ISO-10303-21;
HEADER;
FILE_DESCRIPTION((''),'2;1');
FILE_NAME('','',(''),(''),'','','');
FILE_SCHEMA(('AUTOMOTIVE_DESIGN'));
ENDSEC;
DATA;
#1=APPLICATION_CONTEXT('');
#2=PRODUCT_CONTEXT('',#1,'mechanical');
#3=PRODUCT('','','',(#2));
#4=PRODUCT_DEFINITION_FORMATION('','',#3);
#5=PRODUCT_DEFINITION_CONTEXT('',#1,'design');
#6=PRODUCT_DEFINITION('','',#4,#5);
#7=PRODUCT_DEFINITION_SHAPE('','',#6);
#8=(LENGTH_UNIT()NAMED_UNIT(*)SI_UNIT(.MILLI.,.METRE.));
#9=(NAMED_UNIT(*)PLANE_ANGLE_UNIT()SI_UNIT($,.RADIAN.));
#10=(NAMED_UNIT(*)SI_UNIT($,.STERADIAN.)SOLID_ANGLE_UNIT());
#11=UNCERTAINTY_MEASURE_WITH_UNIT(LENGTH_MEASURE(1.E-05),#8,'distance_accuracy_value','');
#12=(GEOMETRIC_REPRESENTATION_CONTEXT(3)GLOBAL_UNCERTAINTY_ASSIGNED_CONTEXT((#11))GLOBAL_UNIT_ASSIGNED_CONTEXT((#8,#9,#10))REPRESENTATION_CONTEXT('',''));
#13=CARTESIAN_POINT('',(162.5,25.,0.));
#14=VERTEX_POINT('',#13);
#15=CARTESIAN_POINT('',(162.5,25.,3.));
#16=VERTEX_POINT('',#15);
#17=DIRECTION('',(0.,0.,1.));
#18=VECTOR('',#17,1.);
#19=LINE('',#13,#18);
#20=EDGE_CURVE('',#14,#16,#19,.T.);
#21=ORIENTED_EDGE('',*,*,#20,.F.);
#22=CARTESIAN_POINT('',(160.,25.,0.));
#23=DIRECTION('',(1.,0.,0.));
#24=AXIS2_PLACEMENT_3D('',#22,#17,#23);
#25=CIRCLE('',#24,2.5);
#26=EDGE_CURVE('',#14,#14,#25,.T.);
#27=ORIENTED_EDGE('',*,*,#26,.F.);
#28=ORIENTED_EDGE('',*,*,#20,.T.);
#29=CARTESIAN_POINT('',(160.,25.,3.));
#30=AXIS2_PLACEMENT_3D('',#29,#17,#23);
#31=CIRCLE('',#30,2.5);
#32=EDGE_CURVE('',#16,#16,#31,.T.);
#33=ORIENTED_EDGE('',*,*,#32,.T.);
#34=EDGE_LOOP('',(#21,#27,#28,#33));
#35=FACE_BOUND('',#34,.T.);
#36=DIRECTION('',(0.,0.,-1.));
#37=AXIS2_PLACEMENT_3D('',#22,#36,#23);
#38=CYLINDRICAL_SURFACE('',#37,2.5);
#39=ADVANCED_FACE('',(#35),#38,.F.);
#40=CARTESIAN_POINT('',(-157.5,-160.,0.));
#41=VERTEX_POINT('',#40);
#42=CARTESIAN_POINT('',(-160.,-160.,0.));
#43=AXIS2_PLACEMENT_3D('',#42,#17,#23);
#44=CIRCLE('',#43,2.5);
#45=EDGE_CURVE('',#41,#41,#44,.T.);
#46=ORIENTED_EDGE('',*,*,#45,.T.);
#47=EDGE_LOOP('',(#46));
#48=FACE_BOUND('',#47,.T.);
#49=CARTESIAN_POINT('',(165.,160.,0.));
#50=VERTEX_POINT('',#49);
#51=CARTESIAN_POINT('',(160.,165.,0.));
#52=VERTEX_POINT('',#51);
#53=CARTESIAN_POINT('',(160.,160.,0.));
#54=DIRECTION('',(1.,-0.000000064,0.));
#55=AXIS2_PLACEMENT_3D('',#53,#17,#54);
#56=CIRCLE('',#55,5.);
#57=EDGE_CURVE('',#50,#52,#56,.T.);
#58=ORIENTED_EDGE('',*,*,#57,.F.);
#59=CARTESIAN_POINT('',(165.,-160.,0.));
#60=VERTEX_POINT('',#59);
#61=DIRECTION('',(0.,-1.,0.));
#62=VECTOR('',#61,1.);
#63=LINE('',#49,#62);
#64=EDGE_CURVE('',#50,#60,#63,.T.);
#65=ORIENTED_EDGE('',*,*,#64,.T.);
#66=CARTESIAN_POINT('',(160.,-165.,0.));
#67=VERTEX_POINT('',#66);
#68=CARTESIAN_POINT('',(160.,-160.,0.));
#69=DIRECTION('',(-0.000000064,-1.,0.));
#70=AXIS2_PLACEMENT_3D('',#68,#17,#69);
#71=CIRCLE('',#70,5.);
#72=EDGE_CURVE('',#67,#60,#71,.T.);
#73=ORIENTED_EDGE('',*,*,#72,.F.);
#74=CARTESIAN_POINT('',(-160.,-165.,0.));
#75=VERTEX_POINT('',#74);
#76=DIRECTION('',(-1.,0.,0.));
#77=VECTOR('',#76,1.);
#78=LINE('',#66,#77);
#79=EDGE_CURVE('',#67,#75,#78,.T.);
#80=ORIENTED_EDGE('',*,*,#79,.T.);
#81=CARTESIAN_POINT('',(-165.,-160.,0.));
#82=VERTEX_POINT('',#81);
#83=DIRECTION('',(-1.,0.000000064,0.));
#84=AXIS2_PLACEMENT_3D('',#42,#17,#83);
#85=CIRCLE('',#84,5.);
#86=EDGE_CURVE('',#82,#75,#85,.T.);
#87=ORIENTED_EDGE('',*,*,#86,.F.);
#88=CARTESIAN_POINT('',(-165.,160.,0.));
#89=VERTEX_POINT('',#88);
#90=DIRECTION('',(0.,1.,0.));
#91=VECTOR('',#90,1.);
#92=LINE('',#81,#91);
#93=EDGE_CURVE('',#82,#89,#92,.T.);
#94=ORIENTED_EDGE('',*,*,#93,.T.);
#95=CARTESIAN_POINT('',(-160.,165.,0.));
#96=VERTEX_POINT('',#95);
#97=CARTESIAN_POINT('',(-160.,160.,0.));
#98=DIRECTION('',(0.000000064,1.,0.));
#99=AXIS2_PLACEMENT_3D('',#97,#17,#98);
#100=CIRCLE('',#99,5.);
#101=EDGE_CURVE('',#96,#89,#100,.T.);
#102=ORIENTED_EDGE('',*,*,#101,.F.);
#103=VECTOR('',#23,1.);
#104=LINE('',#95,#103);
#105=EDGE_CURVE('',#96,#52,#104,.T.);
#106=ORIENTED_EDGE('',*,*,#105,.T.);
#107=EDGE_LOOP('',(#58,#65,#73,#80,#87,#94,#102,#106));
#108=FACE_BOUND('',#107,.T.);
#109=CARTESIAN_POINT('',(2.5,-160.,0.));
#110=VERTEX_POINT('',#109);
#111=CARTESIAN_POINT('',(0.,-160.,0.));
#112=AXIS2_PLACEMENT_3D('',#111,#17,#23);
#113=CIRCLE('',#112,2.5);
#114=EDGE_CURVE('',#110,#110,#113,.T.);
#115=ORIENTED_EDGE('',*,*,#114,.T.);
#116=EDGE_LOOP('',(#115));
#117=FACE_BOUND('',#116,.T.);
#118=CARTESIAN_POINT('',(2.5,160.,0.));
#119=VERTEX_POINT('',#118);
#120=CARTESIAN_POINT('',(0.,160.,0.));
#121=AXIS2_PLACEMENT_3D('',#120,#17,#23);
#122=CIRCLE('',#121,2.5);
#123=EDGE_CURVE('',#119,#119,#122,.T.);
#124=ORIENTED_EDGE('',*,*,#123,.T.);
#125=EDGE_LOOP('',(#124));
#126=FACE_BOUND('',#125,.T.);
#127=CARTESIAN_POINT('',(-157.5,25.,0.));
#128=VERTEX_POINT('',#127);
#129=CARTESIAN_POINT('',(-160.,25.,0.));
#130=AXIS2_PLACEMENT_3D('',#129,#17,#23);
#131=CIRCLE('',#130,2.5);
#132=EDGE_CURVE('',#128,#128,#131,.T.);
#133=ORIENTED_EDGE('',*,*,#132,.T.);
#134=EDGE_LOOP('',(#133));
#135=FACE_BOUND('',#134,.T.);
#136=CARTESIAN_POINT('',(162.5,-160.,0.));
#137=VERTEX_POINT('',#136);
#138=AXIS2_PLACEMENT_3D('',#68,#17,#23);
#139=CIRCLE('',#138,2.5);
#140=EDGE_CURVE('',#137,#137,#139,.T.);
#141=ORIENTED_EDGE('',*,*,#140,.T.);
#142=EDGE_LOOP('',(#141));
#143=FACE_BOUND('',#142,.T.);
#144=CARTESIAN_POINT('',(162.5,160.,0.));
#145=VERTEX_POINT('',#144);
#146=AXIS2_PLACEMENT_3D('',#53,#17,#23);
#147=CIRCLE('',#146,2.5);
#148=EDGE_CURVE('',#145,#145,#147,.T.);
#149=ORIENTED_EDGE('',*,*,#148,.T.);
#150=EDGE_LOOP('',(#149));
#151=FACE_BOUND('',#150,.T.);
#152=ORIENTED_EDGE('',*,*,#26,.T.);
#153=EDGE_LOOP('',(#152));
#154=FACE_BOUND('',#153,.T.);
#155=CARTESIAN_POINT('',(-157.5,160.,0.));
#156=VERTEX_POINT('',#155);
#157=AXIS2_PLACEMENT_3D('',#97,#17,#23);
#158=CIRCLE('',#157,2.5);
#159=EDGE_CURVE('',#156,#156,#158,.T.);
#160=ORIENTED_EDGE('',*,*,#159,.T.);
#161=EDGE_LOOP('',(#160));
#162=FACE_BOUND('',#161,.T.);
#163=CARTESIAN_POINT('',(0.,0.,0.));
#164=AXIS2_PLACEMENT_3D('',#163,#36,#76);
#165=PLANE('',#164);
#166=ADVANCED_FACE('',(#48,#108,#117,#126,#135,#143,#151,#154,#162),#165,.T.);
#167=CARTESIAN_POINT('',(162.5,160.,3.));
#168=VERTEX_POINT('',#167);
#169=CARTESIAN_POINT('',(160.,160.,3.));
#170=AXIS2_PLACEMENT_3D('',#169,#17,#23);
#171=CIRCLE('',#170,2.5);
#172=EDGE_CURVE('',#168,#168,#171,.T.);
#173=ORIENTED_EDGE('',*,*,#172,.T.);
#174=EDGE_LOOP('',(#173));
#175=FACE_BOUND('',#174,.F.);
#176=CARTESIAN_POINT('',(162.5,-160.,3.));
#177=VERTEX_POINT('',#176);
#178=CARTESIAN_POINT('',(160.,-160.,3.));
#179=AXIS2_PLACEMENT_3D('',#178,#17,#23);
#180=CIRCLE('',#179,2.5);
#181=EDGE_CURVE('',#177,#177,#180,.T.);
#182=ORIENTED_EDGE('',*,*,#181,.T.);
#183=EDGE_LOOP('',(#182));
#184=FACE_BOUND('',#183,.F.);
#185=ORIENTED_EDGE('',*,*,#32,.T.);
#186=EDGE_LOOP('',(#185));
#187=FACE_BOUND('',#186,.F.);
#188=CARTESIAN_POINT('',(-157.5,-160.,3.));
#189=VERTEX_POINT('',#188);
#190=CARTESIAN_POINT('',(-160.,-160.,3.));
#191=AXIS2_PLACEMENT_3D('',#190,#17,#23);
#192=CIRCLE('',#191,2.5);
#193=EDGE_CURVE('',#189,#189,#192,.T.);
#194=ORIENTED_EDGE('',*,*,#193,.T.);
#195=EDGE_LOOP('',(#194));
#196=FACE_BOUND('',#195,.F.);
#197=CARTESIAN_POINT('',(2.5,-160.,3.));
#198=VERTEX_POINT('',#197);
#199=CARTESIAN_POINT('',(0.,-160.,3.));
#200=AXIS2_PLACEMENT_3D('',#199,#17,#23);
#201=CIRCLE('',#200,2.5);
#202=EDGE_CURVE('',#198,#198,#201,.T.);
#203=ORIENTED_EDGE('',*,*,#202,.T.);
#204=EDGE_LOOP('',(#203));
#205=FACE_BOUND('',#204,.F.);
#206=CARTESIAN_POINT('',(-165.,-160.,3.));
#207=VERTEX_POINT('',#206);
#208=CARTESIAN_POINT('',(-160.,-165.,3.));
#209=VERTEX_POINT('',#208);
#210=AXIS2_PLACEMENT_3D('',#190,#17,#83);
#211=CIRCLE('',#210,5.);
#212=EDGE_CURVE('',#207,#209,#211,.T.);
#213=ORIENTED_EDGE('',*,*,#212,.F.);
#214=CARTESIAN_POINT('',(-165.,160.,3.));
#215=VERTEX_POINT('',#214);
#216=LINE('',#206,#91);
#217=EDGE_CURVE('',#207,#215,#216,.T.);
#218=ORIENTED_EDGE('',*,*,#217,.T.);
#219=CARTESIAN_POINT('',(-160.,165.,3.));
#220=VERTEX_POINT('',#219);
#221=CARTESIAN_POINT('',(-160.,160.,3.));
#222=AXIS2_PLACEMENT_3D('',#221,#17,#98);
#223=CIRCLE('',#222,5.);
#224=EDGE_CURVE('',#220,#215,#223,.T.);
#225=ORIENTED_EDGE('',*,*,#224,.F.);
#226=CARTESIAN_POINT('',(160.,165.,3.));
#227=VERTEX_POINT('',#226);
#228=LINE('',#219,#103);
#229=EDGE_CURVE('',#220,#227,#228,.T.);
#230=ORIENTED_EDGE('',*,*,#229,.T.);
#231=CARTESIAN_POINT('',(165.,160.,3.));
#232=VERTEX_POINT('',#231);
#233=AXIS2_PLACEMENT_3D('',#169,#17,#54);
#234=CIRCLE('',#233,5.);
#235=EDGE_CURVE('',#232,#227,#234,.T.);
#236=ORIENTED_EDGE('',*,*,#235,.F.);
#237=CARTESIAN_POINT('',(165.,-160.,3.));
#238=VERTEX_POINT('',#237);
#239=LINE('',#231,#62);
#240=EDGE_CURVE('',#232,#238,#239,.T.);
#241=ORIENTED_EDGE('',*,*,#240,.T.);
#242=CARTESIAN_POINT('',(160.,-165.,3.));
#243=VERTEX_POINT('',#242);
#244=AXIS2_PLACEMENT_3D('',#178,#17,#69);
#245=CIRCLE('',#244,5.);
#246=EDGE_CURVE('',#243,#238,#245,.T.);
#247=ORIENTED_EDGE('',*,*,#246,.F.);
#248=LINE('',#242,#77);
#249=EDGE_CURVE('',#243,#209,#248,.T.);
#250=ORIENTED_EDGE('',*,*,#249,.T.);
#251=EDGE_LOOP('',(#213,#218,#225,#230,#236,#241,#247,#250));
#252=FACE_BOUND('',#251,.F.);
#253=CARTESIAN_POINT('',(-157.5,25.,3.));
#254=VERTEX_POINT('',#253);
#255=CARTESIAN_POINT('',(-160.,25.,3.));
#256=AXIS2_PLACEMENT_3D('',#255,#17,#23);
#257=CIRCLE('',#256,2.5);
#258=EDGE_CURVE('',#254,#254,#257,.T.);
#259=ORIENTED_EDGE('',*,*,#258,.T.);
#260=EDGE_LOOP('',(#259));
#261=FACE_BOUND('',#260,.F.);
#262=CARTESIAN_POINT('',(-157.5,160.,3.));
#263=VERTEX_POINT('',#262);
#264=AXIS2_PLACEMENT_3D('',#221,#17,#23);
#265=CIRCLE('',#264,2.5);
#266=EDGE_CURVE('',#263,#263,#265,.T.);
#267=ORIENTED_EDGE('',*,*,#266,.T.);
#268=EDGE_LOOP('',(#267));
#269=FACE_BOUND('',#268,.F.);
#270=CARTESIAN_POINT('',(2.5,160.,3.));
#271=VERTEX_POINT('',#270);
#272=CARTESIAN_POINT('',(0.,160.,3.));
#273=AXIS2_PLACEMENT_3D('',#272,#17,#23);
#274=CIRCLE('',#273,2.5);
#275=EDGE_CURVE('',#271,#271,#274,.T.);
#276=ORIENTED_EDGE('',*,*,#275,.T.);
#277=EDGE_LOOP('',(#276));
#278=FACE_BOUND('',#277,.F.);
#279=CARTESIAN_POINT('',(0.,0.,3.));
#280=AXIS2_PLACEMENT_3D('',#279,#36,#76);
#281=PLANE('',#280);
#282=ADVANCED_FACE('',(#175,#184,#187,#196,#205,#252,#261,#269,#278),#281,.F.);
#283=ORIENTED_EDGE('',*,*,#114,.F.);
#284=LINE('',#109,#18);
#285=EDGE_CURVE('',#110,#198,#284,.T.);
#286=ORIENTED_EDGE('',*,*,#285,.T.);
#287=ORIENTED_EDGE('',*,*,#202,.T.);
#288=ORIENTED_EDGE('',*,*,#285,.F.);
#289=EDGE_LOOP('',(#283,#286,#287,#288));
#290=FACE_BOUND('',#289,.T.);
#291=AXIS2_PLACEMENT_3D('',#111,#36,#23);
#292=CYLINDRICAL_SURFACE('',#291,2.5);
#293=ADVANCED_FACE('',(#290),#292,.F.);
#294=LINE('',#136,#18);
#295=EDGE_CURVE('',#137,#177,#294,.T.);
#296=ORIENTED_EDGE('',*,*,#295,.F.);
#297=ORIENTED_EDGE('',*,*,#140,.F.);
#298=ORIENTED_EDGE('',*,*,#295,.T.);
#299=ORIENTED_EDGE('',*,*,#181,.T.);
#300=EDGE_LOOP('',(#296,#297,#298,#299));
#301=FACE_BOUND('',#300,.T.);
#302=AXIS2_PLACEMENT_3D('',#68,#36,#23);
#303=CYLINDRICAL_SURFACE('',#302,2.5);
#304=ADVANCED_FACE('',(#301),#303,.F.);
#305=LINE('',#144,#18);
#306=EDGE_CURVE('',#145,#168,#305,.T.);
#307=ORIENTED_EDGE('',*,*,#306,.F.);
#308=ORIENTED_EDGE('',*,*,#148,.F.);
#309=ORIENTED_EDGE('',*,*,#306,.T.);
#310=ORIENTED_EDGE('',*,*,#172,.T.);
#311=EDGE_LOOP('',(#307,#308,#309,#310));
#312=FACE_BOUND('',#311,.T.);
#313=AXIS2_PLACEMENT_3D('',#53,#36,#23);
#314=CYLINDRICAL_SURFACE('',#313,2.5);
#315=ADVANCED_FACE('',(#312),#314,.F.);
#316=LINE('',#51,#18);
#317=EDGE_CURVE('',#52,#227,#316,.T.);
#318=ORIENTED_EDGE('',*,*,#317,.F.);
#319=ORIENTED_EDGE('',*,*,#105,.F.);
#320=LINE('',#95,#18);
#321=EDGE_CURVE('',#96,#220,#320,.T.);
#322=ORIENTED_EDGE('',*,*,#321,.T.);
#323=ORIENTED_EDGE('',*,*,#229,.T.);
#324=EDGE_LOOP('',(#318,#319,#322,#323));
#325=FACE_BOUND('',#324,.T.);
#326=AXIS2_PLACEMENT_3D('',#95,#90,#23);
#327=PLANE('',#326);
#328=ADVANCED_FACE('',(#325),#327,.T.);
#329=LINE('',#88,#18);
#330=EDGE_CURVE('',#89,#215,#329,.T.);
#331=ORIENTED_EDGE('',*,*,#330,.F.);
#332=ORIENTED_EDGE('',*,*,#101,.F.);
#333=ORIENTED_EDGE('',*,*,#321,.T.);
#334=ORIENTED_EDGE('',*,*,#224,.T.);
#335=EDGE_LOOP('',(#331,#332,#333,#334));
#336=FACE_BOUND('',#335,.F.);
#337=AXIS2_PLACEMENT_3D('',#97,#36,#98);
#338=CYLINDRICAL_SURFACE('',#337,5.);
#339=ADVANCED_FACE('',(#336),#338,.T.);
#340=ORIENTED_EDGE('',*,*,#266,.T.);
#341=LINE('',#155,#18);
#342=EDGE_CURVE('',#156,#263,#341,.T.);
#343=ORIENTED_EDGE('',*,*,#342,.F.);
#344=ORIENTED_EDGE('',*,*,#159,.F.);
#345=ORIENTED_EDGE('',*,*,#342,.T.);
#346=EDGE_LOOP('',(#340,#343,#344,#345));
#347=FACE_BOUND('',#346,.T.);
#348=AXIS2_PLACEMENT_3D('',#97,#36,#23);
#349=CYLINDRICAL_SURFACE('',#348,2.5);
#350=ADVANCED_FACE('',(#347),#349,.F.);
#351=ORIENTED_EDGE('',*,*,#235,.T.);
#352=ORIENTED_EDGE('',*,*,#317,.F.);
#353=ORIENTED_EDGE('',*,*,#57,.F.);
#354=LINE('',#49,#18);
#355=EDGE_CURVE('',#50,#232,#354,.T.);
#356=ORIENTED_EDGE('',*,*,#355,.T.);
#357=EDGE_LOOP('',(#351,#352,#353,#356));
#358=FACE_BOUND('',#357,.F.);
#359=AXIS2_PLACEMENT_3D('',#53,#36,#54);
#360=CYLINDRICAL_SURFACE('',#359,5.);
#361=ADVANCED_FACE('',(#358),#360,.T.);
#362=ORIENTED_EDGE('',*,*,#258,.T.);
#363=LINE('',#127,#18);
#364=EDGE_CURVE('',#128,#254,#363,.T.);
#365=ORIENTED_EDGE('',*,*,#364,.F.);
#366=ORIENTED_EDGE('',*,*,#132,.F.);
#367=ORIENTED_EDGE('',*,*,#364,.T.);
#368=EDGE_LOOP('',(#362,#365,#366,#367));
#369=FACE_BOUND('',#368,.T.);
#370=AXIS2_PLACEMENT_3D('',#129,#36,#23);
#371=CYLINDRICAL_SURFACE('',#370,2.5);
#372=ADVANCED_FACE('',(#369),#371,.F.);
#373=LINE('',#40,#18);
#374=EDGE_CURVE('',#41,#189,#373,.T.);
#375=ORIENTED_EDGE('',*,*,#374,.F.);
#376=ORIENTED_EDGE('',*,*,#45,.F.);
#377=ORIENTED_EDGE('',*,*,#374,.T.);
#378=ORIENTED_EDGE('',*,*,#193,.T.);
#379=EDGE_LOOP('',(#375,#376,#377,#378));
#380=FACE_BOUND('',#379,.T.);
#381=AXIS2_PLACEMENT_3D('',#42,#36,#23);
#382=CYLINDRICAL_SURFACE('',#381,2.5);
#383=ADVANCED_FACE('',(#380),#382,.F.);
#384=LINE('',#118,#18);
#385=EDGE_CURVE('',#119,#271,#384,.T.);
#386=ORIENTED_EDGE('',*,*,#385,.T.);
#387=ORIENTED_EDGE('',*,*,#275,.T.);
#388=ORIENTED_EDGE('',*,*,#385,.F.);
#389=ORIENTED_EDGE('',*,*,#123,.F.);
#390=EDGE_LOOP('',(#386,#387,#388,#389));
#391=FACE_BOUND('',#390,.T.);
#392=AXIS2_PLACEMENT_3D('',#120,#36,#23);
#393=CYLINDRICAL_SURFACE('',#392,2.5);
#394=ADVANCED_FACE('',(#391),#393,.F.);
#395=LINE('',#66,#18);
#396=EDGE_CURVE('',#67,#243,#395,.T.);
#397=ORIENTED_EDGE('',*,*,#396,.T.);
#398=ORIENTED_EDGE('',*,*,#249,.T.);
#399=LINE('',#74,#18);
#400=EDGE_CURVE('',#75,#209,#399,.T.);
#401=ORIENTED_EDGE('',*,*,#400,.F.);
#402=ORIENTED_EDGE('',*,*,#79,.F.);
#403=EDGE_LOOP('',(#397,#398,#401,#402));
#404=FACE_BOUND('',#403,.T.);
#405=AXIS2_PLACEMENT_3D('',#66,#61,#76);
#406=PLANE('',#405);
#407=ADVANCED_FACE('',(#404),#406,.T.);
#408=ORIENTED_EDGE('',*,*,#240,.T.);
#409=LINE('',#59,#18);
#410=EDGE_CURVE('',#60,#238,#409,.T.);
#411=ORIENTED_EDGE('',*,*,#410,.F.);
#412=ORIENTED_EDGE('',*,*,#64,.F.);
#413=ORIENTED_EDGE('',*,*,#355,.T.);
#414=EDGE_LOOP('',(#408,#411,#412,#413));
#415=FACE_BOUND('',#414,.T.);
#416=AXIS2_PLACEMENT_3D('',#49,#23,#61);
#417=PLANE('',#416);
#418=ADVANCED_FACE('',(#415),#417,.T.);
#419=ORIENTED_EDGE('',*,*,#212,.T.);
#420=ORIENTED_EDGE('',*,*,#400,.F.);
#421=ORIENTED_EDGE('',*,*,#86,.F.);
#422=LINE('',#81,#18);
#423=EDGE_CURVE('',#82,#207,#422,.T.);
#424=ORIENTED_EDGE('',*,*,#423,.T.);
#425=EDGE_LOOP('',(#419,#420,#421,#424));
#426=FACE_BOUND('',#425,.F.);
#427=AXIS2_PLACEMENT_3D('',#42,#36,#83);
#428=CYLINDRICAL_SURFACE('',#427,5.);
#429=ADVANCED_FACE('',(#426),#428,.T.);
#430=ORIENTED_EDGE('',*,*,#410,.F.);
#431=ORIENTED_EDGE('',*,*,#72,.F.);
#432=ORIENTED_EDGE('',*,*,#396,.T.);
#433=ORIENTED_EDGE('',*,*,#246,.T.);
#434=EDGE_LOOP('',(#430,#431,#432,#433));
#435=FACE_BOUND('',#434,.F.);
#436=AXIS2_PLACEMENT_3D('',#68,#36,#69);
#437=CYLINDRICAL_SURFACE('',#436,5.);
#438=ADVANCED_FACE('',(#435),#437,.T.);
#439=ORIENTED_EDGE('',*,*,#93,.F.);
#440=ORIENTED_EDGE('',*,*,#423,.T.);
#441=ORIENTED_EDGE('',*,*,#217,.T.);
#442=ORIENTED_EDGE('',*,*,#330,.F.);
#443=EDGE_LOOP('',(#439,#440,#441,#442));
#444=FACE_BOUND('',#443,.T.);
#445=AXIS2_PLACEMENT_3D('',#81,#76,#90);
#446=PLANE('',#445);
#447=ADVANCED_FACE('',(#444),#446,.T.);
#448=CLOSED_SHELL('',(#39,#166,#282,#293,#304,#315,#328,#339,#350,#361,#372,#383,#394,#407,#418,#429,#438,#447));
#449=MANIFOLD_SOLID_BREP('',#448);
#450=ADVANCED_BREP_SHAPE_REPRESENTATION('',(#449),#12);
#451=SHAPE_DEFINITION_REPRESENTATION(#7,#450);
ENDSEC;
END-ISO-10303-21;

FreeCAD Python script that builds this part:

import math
import FreeCAD as App
import Part
import Sketcher
from FreeCAD import Vector
Q = App.Units.Quantity

doc = App.newDocument("Part")
body = doc.addObject("PartDesign::Body", "Body")

# Sketch on XY plane
sketch1 = body.newObject("Sketcher::SketchObject", "Sketch")
sketch1.AttachmentSupport = (doc.getObject("XY_Plane"), [""])
sketch1.MapMode = "FlatFace"
sketch1.addGeometry(Part.LineSegment(Vector(160, 165, 0), Vector(-160, 165, 0)), False)
sketch1.addGeometry(Part.ArcOfCircle(Part.Circle(Vector(-160, 160, 0), Vector(0, 0, 1), 5), math.radians(90), math.radians(180)), False)
sketch1.addGeometry(Part.LineSegment(Vector(-165, 160, 0), Vector(-165, -160, 0)), False)
sketch1.addGeometry(Part.ArcOfCircle(Part.Circle(Vector(-160, -160, 0), Vector(0, 0, 1), 5), math.radians(180), math.radians(270)), False)
sketch1.addGeometry(Part.LineSegment(Vector(-160, -165, 0), Vector(160, -165, 0)), False)
sketch1.addGeometry(Part.ArcOfCircle(Part.Circle(Vector(160, -160, 0), Vector(0, 0, 1), 5), math.radians(-90), math.radians(0)), False)
sketch1.addGeometry(Part.LineSegment(Vector(165, -160, 0), Vector(165, 160, 0)), False)
sketch1.addGeometry(Part.ArcOfCircle(Part.Circle(Vector(160, 160, 0), Vector(0, 0, 1), 5), math.radians(0), math.radians(90)), False)
sketch1.addGeometry(Part.Circle(Vector(160, -160, 0), Vector(0, 0, 1), 2.5), False)
sketch1.addGeometry(Part.Circle(Vector(0, -160, 0), Vector(0, 0, 1), 2.5), False)
sketch1.addGeometry(Part.Circle(Vector(-160, -160, 0), Vector(0, 0, 1), 2.5), False)
sketch1.addGeometry(Part.Circle(Vector(160, 25, 0), Vector(0, 0, 1), 2.5), False)
sketch1.addGeometry(Part.Circle(Vector(160, 160, 0), Vector(0, 0, 1), 2.5), False)
sketch1.addGeometry(Part.Circle(Vector(-160, 25, 0), Vector(0, 0, 1), 2.5), False)
sketch1.addGeometry(Part.Circle(Vector(0, 160, 0), Vector(0, 0, 1), 2.5), False)
sketch1.addGeometry(Part.Circle(Vector(-160, 160, 0), Vector(0, 0, 1), 2.5), False)
sketch1.addConstraint(Sketcher.Constraint("Tangent", 0, 2, 1, 1))
sketch1.addConstraint(Sketcher.Constraint("Tangent", 1, 2, 2, 1))
sketch1.addConstraint(Sketcher.Constraint("Tangent", 2, 2, 3, 1))
sketch1.addConstraint(Sketcher.Constraint("Tangent", 3, 2, 4, 1))
sketch1.addConstraint(Sketcher.Constraint("Tangent", 4, 2, 5, 1))
sketch1.addConstraint(Sketcher.Constraint("Tangent", 5, 2, 6, 1))
sketch1.addConstraint(Sketcher.Constraint("Tangent", 6, 2, 7, 1))
sketch1.addConstraint(Sketcher.Constraint("Tangent", 7, 2, 0, 1))
sketch1.addConstraint(Sketcher.Constraint("Horizontal", 0))
sketch1.addConstraint(Sketcher.Constraint("Vertical", 2))
sketch1.addConstraint(Sketcher.Constraint("Horizontal", 4))
sketch1.addConstraint(Sketcher.Constraint("Vertical", 6))
sketch1.addConstraint(Sketcher.Constraint("Coincident", 8, 3, 5, 3))
sketch1.addConstraint(Sketcher.Constraint("Coincident", 10, 3, 3, 3))
sketch1.addConstraint(Sketcher.Constraint("Coincident", 12, 3, 7, 3))
sketch1.addConstraint(Sketcher.Constraint("Coincident", 15, 3, 1, 3))
sketch1.addConstraint(Sketcher.Constraint("Equal", 1, 3))
sketch1.addConstraint(Sketcher.Constraint("Equal", 3, 5))
sketch1.addConstraint(Sketcher.Constraint("Equal", 5, 7))
sketch1.addConstraint(Sketcher.Constraint("Equal", 8, 9))
sketch1.addConstraint(Sketcher.Constraint("Equal", 9, 10))
sketch1.addConstraint(Sketcher.Constraint("Equal", 10, 11))
sketch1.addConstraint(Sketcher.Constraint("Equal", 11, 12))
sketch1.addConstraint(Sketcher.Constraint("Equal", 12, 13))
sketch1.addConstraint(Sketcher.Constraint("Equal", 13, 14))
sketch1.addConstraint(Sketcher.Constraint("Equal", 14, 15))
sketch1.addConstraint(Sketcher.Constraint("Symmetric", 1, 3, 5, 3, -1, 1))
sketch1.addConstraint(Sketcher.Constraint("Symmetric", 9, 3, 14, 3, -1, 1))
sketch1.addConstraint(Sketcher.Constraint("Symmetric", 11, 3, 13, 3, -2))
sketch1.addConstraint(Sketcher.Constraint("PointOnObject", 9, 3, -2))
sketch1.addConstraint(Sketcher.Constraint("Horizontal", 8, 3, 9, 3))
sketch1.addConstraint(Sketcher.Constraint("Vertical", 8, 3, 11, 3))
sketch1.addConstraint(Sketcher.Constraint("Equal", 4, 2))
sketch1.addConstraint(Sketcher.Constraint("Diameter", 8, Q("5 mm")))
sketch1.addConstraint(Sketcher.Constraint("Radius", 1, Q("5 mm")))
sketch1.addConstraint(Sketcher.Constraint("DistanceX", 0, 2, 0, 1, Q("320 mm")))
sketch1.addConstraint(Sketcher.Constraint("DistanceY", -1, 1, 11, 3, Q("25 mm")))
pad1 = body.newObject("PartDesign::Pad", "Pad")
pad1.Profile = sketch1
pad1.Length = 3

doc.recompute()
